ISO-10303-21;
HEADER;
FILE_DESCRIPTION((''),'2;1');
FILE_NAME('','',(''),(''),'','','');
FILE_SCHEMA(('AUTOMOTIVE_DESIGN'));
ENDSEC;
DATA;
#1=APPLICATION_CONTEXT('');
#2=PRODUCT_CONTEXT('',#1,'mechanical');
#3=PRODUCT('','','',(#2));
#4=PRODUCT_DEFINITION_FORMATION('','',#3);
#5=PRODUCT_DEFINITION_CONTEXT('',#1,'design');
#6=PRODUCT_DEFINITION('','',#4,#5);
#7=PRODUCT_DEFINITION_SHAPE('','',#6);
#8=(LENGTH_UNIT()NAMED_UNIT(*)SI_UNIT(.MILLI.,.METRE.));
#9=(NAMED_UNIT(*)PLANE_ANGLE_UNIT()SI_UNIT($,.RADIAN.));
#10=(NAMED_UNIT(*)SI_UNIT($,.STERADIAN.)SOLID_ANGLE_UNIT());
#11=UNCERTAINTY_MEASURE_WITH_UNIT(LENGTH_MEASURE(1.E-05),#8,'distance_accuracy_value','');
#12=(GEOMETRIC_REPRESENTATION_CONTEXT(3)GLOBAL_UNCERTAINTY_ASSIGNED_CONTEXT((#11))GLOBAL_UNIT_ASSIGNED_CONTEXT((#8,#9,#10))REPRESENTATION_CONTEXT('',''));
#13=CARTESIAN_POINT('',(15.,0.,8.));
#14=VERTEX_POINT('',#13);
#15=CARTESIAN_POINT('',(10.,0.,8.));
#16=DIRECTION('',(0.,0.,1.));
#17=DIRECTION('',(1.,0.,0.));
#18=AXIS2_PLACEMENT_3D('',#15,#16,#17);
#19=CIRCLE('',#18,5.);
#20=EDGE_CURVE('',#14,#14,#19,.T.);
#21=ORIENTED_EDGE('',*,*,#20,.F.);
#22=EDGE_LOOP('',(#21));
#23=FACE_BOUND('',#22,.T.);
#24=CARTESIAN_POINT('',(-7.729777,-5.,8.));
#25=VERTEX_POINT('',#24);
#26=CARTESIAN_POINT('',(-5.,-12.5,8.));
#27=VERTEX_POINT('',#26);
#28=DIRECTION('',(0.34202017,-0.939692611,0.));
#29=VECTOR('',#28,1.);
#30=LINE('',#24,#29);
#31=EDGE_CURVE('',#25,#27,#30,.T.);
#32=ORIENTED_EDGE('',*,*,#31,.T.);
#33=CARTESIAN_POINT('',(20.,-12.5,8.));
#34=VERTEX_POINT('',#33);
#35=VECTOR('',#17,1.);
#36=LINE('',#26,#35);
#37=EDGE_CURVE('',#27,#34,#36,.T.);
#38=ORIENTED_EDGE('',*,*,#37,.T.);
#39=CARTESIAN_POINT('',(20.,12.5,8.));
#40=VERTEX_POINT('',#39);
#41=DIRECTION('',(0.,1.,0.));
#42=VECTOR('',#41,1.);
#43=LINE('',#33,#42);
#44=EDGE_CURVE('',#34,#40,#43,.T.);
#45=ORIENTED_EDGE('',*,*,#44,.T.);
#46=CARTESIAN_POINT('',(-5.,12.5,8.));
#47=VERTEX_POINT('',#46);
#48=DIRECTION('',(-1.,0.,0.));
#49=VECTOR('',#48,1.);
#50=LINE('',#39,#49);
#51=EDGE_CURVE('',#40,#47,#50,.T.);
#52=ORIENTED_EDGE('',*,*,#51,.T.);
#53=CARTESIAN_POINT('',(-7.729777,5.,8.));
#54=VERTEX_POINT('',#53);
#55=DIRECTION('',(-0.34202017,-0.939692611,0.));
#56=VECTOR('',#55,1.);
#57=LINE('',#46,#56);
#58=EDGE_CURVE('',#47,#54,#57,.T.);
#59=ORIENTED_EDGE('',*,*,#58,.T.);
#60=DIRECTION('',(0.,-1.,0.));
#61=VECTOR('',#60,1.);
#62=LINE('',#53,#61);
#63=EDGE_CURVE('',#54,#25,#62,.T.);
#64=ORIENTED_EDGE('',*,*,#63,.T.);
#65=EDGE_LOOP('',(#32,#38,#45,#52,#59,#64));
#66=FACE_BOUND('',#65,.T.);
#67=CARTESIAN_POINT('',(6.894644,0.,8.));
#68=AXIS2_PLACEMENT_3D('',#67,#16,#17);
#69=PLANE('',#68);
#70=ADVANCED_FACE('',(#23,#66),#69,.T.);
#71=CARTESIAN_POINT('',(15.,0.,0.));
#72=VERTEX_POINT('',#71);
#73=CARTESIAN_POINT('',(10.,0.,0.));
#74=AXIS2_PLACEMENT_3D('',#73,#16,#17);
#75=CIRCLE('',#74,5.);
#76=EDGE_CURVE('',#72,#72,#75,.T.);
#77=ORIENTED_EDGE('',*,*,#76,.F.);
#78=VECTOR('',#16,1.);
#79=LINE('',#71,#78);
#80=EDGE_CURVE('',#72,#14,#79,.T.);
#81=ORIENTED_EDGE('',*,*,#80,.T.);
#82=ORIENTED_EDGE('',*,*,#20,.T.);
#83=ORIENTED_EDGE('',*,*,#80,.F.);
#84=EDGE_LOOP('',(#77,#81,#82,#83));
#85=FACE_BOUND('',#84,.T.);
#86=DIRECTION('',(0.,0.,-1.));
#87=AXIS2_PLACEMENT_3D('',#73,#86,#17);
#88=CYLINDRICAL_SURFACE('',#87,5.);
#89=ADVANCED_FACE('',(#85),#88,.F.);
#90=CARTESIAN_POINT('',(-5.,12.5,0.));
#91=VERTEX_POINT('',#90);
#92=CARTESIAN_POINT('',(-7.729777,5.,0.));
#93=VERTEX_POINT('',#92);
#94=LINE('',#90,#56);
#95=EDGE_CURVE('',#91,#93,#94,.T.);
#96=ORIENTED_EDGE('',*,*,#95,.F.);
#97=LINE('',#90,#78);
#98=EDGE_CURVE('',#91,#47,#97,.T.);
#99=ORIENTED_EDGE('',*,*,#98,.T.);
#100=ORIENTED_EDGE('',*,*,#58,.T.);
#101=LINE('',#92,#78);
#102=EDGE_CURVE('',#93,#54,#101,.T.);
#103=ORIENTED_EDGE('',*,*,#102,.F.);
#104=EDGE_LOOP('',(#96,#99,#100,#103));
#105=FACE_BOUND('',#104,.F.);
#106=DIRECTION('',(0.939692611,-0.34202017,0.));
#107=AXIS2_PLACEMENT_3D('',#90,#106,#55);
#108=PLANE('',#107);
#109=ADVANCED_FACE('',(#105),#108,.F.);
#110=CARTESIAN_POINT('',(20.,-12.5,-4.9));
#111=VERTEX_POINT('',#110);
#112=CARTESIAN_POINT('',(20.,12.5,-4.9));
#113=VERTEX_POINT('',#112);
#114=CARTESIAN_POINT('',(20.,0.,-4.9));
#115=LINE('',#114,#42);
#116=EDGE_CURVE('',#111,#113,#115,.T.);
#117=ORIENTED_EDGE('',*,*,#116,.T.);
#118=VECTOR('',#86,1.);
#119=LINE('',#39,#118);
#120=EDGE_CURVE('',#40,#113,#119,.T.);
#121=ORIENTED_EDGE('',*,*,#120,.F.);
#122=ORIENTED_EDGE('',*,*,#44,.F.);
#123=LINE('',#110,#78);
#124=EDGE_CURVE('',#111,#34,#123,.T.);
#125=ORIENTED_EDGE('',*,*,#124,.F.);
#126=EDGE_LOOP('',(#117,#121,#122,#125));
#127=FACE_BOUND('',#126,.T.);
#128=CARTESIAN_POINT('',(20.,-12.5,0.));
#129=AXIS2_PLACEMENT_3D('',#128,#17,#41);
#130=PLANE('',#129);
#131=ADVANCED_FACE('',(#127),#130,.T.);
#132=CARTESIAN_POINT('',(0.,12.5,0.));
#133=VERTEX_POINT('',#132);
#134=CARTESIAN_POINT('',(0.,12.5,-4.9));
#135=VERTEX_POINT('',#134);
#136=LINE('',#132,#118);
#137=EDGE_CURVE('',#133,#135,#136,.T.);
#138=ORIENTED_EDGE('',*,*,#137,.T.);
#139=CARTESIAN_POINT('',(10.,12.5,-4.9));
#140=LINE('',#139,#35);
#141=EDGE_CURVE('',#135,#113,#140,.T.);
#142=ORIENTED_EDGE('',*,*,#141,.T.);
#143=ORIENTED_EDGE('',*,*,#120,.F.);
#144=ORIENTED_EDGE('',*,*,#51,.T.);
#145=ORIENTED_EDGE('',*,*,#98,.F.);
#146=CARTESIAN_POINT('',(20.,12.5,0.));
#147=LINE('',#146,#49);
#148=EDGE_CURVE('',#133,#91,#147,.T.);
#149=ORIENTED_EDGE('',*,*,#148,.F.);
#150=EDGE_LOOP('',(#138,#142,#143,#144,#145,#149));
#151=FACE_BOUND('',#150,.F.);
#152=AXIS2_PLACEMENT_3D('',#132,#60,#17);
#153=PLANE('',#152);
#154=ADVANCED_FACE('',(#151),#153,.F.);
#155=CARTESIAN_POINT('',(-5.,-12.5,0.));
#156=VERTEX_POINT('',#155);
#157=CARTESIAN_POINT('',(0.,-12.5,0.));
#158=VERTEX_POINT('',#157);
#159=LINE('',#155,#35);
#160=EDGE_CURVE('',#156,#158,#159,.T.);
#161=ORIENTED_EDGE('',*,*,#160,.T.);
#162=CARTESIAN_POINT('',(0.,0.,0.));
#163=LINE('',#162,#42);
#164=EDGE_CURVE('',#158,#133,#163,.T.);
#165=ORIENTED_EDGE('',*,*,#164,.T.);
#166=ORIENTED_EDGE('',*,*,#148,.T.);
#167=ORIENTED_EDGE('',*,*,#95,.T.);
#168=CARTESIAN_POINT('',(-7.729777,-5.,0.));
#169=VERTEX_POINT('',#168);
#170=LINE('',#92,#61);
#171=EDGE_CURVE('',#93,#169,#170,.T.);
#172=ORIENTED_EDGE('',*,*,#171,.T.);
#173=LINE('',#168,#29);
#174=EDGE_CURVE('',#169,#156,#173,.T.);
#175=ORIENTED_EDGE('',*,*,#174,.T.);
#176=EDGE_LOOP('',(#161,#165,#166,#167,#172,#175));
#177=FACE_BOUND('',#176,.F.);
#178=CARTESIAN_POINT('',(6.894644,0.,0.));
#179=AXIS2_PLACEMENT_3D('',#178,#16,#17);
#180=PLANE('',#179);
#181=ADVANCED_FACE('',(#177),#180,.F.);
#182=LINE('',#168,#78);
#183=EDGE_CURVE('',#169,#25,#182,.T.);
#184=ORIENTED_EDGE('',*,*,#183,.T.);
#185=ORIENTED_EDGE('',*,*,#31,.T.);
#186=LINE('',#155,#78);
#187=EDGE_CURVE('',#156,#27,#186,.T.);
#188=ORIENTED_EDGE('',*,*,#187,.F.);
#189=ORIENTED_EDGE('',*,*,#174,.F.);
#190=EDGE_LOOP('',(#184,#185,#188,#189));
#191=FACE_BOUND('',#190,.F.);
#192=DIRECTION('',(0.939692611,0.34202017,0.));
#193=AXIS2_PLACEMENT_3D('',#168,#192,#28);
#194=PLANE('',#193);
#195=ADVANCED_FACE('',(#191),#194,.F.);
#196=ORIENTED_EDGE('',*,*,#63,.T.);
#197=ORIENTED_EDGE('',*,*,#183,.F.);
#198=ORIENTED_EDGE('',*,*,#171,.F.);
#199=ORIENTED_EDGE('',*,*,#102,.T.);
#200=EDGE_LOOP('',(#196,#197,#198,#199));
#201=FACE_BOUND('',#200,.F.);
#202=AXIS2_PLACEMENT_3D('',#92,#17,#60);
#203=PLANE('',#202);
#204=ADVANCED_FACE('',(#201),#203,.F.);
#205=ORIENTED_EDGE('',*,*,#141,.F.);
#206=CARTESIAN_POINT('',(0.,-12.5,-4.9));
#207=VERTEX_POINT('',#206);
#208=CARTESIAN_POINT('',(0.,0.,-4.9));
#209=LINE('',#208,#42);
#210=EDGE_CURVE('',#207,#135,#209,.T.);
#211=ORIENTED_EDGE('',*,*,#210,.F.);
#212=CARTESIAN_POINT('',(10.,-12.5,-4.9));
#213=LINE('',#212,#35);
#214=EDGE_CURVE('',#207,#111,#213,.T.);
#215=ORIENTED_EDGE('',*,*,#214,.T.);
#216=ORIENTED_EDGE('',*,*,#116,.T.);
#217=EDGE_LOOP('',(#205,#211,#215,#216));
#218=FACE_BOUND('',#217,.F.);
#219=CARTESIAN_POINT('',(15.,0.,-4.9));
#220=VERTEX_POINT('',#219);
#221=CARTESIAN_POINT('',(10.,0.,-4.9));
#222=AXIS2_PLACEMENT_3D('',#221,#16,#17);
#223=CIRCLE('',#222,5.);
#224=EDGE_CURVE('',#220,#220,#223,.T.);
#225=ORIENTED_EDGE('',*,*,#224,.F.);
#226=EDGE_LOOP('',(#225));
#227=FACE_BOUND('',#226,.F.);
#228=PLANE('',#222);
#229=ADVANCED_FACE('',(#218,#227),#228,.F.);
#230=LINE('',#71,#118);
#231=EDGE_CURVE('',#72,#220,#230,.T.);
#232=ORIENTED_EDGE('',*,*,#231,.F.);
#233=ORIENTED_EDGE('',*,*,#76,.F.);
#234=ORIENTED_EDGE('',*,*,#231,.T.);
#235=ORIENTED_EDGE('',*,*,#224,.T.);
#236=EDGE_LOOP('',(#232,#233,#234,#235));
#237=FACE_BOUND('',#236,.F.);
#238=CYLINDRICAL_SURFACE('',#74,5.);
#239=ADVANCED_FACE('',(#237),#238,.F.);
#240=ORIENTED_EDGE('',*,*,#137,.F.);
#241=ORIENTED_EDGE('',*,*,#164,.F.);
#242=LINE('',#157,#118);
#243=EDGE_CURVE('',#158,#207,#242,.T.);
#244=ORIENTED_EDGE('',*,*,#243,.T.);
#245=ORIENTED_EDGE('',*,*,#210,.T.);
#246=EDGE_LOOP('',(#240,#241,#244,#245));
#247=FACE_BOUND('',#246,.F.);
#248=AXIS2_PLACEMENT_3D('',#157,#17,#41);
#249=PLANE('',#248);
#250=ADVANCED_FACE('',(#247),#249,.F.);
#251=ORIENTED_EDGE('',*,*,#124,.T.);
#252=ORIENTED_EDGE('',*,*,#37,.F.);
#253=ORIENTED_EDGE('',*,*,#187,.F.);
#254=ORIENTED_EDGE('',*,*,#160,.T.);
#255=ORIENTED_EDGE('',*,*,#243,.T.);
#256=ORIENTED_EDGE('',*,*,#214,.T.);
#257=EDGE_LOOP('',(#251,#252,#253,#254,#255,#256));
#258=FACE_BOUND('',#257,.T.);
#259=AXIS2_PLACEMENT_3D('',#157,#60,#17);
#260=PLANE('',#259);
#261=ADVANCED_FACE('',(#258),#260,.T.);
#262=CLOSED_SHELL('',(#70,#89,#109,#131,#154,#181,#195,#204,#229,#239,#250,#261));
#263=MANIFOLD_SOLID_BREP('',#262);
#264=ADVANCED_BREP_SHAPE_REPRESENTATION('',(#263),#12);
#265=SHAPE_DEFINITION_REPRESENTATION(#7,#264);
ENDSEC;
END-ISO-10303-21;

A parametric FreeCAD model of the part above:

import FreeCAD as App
import Part
import Sketcher
Q = App.Units.Quantity


def add_polygon(sketch, points):
    """Adds a closed chain of lines whose ends are joined by coincident constraints."""
    first, n = sketch.GeometryCount, len(points)
    for a, b in zip(points, points[1:] + points[:1]):
        sketch.addGeometry(Part.LineSegment(App.Vector(*a, 0), App.Vector(*b, 0)), False)
    for i in range(n):
        sketch.addConstraint(Sketcher.Constraint("Coincident", first + i, 2, first + (i + 1) % n, 1))

doc = App.newDocument("Part")
body = doc.addObject("PartDesign::Body", "Body")

# Sketch on XY plane
sketch1 = body.newObject("Sketcher::SketchObject", "Sketch")
sketch1.AttachmentSupport = (doc.getObject("XY_Plane"), [""])
sketch1.MapMode = "FlatFace"
add_polygon(sketch1, [(-5, -12), (20, -12), (20, 12), (-5, 12), (-8, 5), (-8, -5)])  # lines 0-5
sketch1.addGeometry(Part.Circle(App.Vector(10, 0, 0), App.Vector(0, 0, 1), 5), False)  # 6
sketch1.addConstraint([
    Sketcher.Constraint("Horizontal", 0),
    Sketcher.Constraint("Vertical", 1),
    Sketcher.Constraint("Horizontal", 2),
    Sketcher.Constraint("Vertical", 4),
    Sketcher.Constraint("Symmetric", 2, 2, 5, 2, -1),
    Sketcher.Constraint("PointOnObject", 6, 3, -1),
    Sketcher.Constraint("Equal", 2, 1),
    Sketcher.Constraint("Equal", 3, 5),
    Sketcher.Constraint("Diameter", 6, Q("10 mm")),
    Sketcher.Constraint("DistanceX", 0, 1, 0, 2, Q("25 mm")),
    Sketcher.Constraint("DistanceY", 4, 2, 4, 1, Q("10 mm")),
    Sketcher.Constraint("Angle", 3, Q("-110.000002 deg")),
    Sketcher.Constraint("DistanceX", -1, 1, 6, 3, Q("10 mm")),
    Sketcher.Constraint("DistanceX", -1, 1, 0, 2, Q("20 mm")),
])
pad1 = body.newObject("PartDesign::Pad", "Pad")
pad1.Profile = sketch1
pad1.Length = 8

# Sketch on XY plane
sketch2 = body.newObject("Sketcher::SketchObject", "Sketch001")
sketch2.AttachmentSupport = (doc.getObject("XY_Plane"), [""])
sketch2.MapMode = "FlatFace"
add_polygon(sketch2, [(0, 12), (0, -12), (20, -12), (20, 12)])  # lines 0-3
sketch2.addGeometry(Part.Circle(App.Vector(10, 0, 0), App.Vector(0, 0, 1), 5), False)  # 4
sketch2.addConstraint([
    Sketcher.Constraint("Vertical", 0),
    Sketcher.Constraint("Horizontal", 1),
    Sketcher.Constraint("Vertical", 2),
    Sketcher.Constraint("Horizontal", 3),
    Sketcher.Constraint("Symmetric", 0, 2, 3, 2, -1, 1),
    Sketcher.Constraint("PointOnObject", 4, 3, -1),
    Sketcher.Constraint("Diameter", 4, Q("10 mm")),
    Sketcher.Constraint("DistanceX", 1, 1, 1, 2, Q("20 mm")),
    Sketcher.Constraint("DistanceY", 0, 2, 0, 1, Q("25 mm")),
    Sketcher.Constraint("DistanceX", -1, 1, 4, 3, Q("10 mm")),
])
pad2 = body.newObject("PartDesign::Pad", "Pad001")
pad2.Profile = sketch2
pad2.Length = 4.9
pad2.Reversed = True

doc.recompute()
